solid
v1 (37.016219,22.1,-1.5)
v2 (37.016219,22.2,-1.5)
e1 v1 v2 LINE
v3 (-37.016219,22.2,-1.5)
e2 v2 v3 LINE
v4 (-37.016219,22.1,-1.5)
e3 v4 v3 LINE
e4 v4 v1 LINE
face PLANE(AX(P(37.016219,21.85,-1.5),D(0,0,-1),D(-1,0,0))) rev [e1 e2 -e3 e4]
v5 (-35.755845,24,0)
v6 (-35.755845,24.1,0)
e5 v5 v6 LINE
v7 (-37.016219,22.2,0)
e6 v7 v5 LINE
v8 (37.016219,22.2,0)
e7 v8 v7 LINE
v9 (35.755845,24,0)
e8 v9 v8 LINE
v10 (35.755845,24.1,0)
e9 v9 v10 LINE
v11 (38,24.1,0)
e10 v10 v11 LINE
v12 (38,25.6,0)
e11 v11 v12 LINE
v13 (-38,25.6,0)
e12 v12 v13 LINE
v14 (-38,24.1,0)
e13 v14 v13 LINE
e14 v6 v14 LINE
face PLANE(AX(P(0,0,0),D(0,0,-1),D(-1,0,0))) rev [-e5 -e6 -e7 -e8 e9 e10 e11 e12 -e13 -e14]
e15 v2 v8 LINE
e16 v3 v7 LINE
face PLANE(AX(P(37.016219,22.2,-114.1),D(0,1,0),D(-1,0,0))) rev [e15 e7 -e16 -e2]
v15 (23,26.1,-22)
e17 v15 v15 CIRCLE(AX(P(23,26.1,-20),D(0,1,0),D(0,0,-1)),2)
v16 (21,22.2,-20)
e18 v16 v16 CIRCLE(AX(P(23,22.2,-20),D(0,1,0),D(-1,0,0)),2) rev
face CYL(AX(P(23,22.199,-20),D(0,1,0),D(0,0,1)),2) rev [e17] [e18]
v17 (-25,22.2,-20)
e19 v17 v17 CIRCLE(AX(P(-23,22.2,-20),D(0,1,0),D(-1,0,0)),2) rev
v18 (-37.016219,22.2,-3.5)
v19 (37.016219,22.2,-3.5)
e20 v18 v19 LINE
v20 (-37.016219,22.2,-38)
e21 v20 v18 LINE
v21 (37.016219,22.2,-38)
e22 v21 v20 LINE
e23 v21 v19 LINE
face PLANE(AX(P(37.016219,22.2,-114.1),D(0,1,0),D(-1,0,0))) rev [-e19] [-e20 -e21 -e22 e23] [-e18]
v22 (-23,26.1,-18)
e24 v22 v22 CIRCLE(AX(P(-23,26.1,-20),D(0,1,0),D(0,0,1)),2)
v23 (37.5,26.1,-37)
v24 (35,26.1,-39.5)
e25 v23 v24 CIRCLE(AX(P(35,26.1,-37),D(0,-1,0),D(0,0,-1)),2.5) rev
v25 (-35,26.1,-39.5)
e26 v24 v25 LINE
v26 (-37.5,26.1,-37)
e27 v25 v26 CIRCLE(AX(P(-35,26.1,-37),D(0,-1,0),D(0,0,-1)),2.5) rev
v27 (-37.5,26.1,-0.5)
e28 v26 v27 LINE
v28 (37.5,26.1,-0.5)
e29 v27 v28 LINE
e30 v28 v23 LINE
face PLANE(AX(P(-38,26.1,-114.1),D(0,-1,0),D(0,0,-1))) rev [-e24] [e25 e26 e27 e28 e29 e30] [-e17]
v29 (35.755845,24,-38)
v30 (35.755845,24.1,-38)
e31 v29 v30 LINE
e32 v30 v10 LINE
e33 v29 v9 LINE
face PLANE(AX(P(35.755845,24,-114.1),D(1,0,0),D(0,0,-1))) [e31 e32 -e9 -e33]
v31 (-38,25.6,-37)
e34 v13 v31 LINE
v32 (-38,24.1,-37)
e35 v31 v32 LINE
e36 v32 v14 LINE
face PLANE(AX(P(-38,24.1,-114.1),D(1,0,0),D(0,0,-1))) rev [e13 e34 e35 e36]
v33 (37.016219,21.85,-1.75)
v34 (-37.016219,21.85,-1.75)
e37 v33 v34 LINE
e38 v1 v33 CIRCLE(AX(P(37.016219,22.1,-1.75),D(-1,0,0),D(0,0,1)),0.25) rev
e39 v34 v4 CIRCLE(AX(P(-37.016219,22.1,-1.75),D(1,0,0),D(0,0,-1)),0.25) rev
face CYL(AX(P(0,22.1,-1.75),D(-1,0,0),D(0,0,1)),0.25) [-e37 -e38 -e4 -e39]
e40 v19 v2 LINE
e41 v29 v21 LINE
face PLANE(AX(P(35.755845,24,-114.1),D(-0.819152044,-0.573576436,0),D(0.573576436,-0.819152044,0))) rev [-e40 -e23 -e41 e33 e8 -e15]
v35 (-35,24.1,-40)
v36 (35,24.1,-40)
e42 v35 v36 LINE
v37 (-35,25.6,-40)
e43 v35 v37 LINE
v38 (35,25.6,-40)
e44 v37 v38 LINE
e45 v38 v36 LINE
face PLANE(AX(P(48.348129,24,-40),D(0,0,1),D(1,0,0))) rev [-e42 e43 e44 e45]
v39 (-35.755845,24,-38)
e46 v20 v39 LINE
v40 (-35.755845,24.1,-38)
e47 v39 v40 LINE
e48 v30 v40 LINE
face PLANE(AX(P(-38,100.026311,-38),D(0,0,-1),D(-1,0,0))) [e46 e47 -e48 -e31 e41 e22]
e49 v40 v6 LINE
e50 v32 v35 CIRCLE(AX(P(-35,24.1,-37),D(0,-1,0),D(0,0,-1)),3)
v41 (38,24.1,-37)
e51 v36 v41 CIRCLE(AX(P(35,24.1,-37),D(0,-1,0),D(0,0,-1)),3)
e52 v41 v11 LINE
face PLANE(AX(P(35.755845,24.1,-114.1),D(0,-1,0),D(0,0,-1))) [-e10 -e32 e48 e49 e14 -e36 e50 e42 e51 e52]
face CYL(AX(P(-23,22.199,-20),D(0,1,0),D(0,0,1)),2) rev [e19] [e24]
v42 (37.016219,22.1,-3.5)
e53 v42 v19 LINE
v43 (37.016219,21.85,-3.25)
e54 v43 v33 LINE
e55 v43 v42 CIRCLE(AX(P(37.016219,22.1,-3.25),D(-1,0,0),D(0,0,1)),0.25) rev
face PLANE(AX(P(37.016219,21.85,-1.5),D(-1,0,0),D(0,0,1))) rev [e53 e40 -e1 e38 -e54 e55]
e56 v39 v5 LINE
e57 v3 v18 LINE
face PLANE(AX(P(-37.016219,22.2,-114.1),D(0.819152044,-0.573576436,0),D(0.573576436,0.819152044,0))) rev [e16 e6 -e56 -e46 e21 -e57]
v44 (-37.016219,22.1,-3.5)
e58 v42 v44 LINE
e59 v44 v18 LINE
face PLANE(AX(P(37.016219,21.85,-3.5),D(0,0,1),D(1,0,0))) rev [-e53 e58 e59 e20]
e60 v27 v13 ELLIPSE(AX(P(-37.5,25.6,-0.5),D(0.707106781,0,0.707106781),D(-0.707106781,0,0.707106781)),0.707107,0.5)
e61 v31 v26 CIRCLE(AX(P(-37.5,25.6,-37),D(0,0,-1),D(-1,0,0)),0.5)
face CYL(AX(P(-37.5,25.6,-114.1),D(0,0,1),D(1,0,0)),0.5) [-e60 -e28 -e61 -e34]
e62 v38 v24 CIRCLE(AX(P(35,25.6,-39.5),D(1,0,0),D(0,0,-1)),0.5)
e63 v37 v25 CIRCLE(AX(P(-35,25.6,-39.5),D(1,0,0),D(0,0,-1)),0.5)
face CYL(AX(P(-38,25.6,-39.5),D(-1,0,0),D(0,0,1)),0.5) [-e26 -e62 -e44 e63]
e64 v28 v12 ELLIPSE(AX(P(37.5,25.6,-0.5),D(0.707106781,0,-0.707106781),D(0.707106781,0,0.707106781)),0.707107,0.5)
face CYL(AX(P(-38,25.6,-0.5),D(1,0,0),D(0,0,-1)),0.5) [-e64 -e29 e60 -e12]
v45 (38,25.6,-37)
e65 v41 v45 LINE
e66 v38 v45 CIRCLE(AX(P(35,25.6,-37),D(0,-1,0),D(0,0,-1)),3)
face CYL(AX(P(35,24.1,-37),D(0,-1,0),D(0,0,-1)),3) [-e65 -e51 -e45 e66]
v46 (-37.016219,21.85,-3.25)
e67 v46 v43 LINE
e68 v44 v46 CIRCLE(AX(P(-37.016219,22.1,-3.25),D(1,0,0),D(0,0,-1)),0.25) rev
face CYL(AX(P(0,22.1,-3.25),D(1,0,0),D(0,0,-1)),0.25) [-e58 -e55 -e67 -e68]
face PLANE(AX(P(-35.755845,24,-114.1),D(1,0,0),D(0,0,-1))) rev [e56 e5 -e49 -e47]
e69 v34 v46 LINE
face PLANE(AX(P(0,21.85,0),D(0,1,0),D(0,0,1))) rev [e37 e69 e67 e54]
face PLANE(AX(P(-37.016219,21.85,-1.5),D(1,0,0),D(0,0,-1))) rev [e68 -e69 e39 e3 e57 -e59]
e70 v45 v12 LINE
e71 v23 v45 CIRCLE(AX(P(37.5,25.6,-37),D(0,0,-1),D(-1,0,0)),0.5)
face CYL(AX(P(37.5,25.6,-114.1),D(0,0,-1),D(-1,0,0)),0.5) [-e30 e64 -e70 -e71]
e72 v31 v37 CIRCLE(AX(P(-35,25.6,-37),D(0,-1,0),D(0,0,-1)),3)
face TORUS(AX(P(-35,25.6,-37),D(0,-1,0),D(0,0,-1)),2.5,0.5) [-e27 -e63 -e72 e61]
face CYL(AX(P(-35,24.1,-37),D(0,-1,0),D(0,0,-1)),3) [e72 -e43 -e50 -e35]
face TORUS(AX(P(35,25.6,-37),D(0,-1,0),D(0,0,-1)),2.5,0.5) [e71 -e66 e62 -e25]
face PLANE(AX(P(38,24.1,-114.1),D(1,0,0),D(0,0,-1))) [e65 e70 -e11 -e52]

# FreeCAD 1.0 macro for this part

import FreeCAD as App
import Part
import Sketcher
from FreeCAD import Vector
Q = App.Units.Quantity


def edges_at(feature, points):
    """Names of the edges that pass closest to the given points."""
    edges = feature.Shape.Edges
    near = lambda p: min(range(len(edges)), key=lambda i: edges[i].distToShape(Part.Vertex(*p))[0])
    return sorted({f"Edge{near(p) + 1}" for p in points})


def add_polygon(sketch, points):
    """Adds a closed chain of lines whose ends are joined by coincident constraints."""
    first, n = sketch.GeometryCount, len(points)
    for a, b in zip(points, points[1:] + points[:1]):
        sketch.addGeometry(Part.LineSegment(App.Vector(*a, 0), App.Vector(*b, 0)), False)
    for i in range(n):
        sketch.addConstraint(Sketcher.Constraint("Coincident", first + i, 2, first + (i + 1) % n, 1))

doc = App.newDocument("Part")
params = doc.addObject("Spreadsheet::Sheet", "Params")
for row, (alias, value) in enumerate([
    ("sketch1_width", "76 mm"),
    ("sketch1_height", "2 mm"),
    ("sketch1_height2", "0.1 mm"),
    ("pad1_length", "38 mm"),
    ("sketch2_width", "76 mm"),
    ("sketch2_height", "2 mm"),
    ("pad2_length", "2 mm"),
    ("fillet_radius", "3 mm"),
    ("fillet2_radius", "0.5 mm"),
    ("sketch3_diameter", "4 mm"),
    ("sketch4_diameter", "4 mm"),
    ("sketch5_height", "2 mm"),
    ("pad3_length", "0.35 mm"),
    ("fillet3_radius", "0.25 mm"),
], start=1):
    params.set(f"A{row}", alias)
    params.set(f"B{row}", "=" + value)
    params.setAlias(f"B{row}", alias)

body = doc.addObject("PartDesign::Body", "Body")

# Sketch on XY plane
sketch1 = doc.addObject("Sketcher::SketchObject", "Sketch")
body.addObject(sketch1)
sketch1.AttachmentSupport = (doc.XY_Plane, [""])
sketch1.MapMode = "FlatFace"
add_polygon(sketch1, [(37.02, 22.2), (35.76, 24), (35.76, 24.1), (38, 24.1), (38, 26.1), (-38, 26.1), (-38, 24.1), (-35.76, 24.1), (-35.76, 24), (-37.02, 22.2)])  # lines 0-9
sketch1.addConstraint(Sketcher.Constraint("Vertical", 1))
sketch1.addConstraint(Sketcher.Constraint("Horizontal", 2))
sketch1.addConstraint(Sketcher.Constraint("Vertical", 3))
sketch1.addConstraint(Sketcher.Constraint("Horizontal", 4))
sketch1.addConstraint(Sketcher.Constraint("Vertical", 5))
sketch1.addConstraint(Sketcher.Constraint("Horizontal", 6))
sketch1.addConstraint(Sketcher.Constraint("Vertical", 7))
sketch1.addConstraint(Sketcher.Constraint("Horizontal", 9))
sketch1.addConstraint(Sketcher.Constraint("Symmetric", 2, 2, 5, 2, -2))
sketch1.addConstraint(Sketcher.Constraint("Symmetric", 0, 2, 7, 2, -2))
sketch1.addConstraint(Sketcher.Constraint("Equal", 0, 8))
sketch1.addConstraint(Sketcher.Constraint("DistanceX", 4, 2, 4, 1, 76.0))
sketch1.addConstraint(Sketcher.Constraint("DistanceY", 3, 1, 3, 2, 2.0))
sketch1.addConstraint(Sketcher.Constraint("Angle", 0, Q("125 deg")))
sketch1.addConstraint(Sketcher.Constraint("DistanceY", 1, 1, 1, 2, 0.1))
sketch1.addConstraint(Sketcher.Constraint("DistanceY", -1, 1, 0, 2, 24.0))
sketch1.addConstraint(Sketcher.Constraint("DistanceY", -1, 1, 8, 2, 22.2))
sketch1.addConstraint(Sketcher.Constraint("DistanceX", 2, 1, 2, 2, 2.244155))
sketch1.setExpression("Constraints[21]", "Params.sketch1_width")
sketch1.setExpression("Constraints[22]", "Params.sketch1_height")
sketch1.setExpression("Constraints[24]", "Params.sketch1_height2")
pad1 = doc.addObject("PartDesign::Pad", "Pad")
body.addObject(pad1)
pad1.Profile = sketch1
pad1.setExpression("Length", "Params.pad1_length")
pad1.Reversed = True

# Sketch on XY plane
sketch2 = doc.addObject("Sketcher::SketchObject", "Sketch001")
body.addObject(sketch2)
sketch2.AttachmentSupport = (doc.XY_Plane, [""])
sketch2.MapMode = "FlatFace"
sketch2.AttachmentOffset = App.Placement(Vector(0, 0, -38), App.Rotation())
add_polygon(sketch2, [(38, 26.1), (38, 24.1), (-38, 24.1), (-38, 26.1)])  # lines 0-3
sketch2.addConstraint(Sketcher.Constraint("Vertical", 0))
sketch2.addConstraint(Sketcher.Constraint("Horizontal", 1))
sketch2.addConstraint(Sketcher.Constraint("Vertical", 2))
sketch2.addConstraint(Sketcher.Constraint("Horizontal", 3))
sketch2.addConstraint(Sketcher.Constraint("DistanceX", 1, 2, 1, 1, 76.0))
sketch2.addConstraint(Sketcher.Constraint("DistanceY", 0, 2, 0, 1, 2.0))
sketch2.addConstraint(Sketcher.Constraint("DistanceX", -1, 1, 0, 2, 38.0))
sketch2.addConstraint(Sketcher.Constraint("DistanceY", -1, 1, 0, 2, 24.1))
sketch2.setExpression("Constraints[8]", "Params.sketch2_width")
sketch2.setExpression("Constraints[9]", "Params.sketch2_height")
pad2 = doc.addObject("PartDesign::Pad", "Pad001")
body.addObject(pad2)
pad2.Profile = sketch2
pad2.setExpression("Length", "Params.pad2_length")
pad2.Reversed = True
doc.recompute()

fillet = doc.addObject("PartDesign::Fillet", "Fillet")
body.addObject(fillet)
fillet.Base = (pad2, edges_at(pad2, [(-38, 25.1, -40), (38, 25.1, -40)]))
fillet.setExpression("Radius", "Params.fillet_radius")
doc.recompute()

fillet2 = doc.addObject("PartDesign::Fillet", "Fillet001")
body.addObject(fillet2)
fillet2.Base = (fillet, edges_at(fillet, [
    (0, 26.1, 0),
    (-38, 26.1, -18.5),
    (0, 26.1, -40),
    (38, 26.1, -18.5),
    (37.121, 26.1, -39.121),
    (-37.121, 26.1, -39.121),
]))
fillet2.setExpression("Radius", "Params.fillet2_radius")

# Sketch on XZ plane
sketch3 = doc.addObject("Sketcher::SketchObject", "Sketch002")
body.addObject(sketch3)
sketch3.AttachmentSupport = (doc.XZ_Plane, [""])
sketch3.MapMode = "FlatFace"
sketch3.AttachmentOffset = App.Placement(Vector(0, 0, -26.1), App.Rotation())
sketch3.addGeometry(Part.Circle(Vector(-23, -20, 0), Vector(0, 0, 1), 2), False)
sketch3.addConstraint(Sketcher.Constraint("Diameter", 0, 4.0))
sketch3.addConstraint(Sketcher.Constraint("DistanceX", 0, 3, -1, 1, 23.0))
sketch3.addConstraint(Sketcher.Constraint("DistanceY", 0, 3, -1, 1, 20.0))
sketch3.setExpression("Constraints[0]", "Params.sketch3_diameter")
pocket1 = doc.addObject("PartDesign::Pocket", "Pocket")
body.addObject(pocket1)
pocket1.Profile = sketch3
pocket1.Type = "UpToFirst"
pocket1.Reversed = True

# Sketch on XZ plane
sketch4 = doc.addObject("Sketcher::SketchObject", "Sketch003")
body.addObject(sketch4)
sketch4.AttachmentSupport = (doc.XZ_Plane, [""])
sketch4.MapMode = "FlatFace"
sketch4.AttachmentOffset = App.Placement(Vector(0, 0, -26.1), App.Rotation())
sketch4.addGeometry(Part.Circle(Vector(23, -20, 0), Vector(0, 0, 1), 2), False)
sketch4.addConstraint(Sketcher.Constraint("Diameter", 0, 4.0))
sketch4.addConstraint(Sketcher.Constraint("DistanceX", -1, 1, 0, 3, 23.0))
sketch4.addConstraint(Sketcher.Constraint("DistanceY", 0, 3, -1, 1, 20.0))
sketch4.setExpression("Constraints[0]", "Params.sketch4_diameter")
pocket2 = doc.addObject("PartDesign::Pocket", "Pocket001")
body.addObject(pocket2)
pocket2.Profile = sketch4
pocket2.Type = "UpToFirst"
pocket2.Reversed = True

# Sketch on XZ plane
sketch5 = doc.addObject("Sketcher::SketchObject", "Sketch004")
body.addObject(sketch5)
sketch5.AttachmentSupport = (doc.XZ_Plane, [""])
sketch5.MapMode = "FlatFace"
sketch5.AttachmentOffset = App.Placement(Vector(0, 0, -22.2), App.Rotation())
add_polygon(sketch5, [(-37, -1.5), (-37, -3.5), (37, -3.5), (37, -1.5)])  # lines 0-3
sketch5.addConstraint(Sketcher.Constraint("Vertical", 0))
sketch5.addConstraint(Sketcher.Constraint("Horizontal", 1))
sketch5.addConstraint(Sketcher.Constraint("Vertical", 2))
sketch5.addConstraint(Sketcher.Constraint("Horizontal", 3))
sketch5.addConstraint(Sketcher.Constraint("DistanceY", 0, 2, 0, 1, 2.0))
sketch5.addConstraint(Sketcher.Constraint("DistanceY", 0, 2, -1, 1, 3.5))
sketch5.addConstraint(Sketcher.Constraint("DistanceX", 1, 1, 1, 2, 74.032437))
sketch5.addConstraint(Sketcher.Constraint("DistanceX", 0, 2, -1, 1, 37.016219))
sketch5.setExpression("Constraints[8]", "Params.sketch5_height")
pad3 = doc.addObject("PartDesign::Pad", "Pad002")
body.addObject(pad3)
pad3.Profile = sketch5
pad3.setExpression("Length", "Params.pad3_length")
doc.recompute()

fillet3 = doc.addObject("PartDesign::Fillet", "Fillet002")
body.addObject(fillet3)
fillet3.Base = (pad3, edges_at(pad3, [(0, 21.85, -1.5), (0, 21.85, -3.5)]))
fillet3.setExpression("Radius", "Params.fillet3_radius")

doc.recompute()
